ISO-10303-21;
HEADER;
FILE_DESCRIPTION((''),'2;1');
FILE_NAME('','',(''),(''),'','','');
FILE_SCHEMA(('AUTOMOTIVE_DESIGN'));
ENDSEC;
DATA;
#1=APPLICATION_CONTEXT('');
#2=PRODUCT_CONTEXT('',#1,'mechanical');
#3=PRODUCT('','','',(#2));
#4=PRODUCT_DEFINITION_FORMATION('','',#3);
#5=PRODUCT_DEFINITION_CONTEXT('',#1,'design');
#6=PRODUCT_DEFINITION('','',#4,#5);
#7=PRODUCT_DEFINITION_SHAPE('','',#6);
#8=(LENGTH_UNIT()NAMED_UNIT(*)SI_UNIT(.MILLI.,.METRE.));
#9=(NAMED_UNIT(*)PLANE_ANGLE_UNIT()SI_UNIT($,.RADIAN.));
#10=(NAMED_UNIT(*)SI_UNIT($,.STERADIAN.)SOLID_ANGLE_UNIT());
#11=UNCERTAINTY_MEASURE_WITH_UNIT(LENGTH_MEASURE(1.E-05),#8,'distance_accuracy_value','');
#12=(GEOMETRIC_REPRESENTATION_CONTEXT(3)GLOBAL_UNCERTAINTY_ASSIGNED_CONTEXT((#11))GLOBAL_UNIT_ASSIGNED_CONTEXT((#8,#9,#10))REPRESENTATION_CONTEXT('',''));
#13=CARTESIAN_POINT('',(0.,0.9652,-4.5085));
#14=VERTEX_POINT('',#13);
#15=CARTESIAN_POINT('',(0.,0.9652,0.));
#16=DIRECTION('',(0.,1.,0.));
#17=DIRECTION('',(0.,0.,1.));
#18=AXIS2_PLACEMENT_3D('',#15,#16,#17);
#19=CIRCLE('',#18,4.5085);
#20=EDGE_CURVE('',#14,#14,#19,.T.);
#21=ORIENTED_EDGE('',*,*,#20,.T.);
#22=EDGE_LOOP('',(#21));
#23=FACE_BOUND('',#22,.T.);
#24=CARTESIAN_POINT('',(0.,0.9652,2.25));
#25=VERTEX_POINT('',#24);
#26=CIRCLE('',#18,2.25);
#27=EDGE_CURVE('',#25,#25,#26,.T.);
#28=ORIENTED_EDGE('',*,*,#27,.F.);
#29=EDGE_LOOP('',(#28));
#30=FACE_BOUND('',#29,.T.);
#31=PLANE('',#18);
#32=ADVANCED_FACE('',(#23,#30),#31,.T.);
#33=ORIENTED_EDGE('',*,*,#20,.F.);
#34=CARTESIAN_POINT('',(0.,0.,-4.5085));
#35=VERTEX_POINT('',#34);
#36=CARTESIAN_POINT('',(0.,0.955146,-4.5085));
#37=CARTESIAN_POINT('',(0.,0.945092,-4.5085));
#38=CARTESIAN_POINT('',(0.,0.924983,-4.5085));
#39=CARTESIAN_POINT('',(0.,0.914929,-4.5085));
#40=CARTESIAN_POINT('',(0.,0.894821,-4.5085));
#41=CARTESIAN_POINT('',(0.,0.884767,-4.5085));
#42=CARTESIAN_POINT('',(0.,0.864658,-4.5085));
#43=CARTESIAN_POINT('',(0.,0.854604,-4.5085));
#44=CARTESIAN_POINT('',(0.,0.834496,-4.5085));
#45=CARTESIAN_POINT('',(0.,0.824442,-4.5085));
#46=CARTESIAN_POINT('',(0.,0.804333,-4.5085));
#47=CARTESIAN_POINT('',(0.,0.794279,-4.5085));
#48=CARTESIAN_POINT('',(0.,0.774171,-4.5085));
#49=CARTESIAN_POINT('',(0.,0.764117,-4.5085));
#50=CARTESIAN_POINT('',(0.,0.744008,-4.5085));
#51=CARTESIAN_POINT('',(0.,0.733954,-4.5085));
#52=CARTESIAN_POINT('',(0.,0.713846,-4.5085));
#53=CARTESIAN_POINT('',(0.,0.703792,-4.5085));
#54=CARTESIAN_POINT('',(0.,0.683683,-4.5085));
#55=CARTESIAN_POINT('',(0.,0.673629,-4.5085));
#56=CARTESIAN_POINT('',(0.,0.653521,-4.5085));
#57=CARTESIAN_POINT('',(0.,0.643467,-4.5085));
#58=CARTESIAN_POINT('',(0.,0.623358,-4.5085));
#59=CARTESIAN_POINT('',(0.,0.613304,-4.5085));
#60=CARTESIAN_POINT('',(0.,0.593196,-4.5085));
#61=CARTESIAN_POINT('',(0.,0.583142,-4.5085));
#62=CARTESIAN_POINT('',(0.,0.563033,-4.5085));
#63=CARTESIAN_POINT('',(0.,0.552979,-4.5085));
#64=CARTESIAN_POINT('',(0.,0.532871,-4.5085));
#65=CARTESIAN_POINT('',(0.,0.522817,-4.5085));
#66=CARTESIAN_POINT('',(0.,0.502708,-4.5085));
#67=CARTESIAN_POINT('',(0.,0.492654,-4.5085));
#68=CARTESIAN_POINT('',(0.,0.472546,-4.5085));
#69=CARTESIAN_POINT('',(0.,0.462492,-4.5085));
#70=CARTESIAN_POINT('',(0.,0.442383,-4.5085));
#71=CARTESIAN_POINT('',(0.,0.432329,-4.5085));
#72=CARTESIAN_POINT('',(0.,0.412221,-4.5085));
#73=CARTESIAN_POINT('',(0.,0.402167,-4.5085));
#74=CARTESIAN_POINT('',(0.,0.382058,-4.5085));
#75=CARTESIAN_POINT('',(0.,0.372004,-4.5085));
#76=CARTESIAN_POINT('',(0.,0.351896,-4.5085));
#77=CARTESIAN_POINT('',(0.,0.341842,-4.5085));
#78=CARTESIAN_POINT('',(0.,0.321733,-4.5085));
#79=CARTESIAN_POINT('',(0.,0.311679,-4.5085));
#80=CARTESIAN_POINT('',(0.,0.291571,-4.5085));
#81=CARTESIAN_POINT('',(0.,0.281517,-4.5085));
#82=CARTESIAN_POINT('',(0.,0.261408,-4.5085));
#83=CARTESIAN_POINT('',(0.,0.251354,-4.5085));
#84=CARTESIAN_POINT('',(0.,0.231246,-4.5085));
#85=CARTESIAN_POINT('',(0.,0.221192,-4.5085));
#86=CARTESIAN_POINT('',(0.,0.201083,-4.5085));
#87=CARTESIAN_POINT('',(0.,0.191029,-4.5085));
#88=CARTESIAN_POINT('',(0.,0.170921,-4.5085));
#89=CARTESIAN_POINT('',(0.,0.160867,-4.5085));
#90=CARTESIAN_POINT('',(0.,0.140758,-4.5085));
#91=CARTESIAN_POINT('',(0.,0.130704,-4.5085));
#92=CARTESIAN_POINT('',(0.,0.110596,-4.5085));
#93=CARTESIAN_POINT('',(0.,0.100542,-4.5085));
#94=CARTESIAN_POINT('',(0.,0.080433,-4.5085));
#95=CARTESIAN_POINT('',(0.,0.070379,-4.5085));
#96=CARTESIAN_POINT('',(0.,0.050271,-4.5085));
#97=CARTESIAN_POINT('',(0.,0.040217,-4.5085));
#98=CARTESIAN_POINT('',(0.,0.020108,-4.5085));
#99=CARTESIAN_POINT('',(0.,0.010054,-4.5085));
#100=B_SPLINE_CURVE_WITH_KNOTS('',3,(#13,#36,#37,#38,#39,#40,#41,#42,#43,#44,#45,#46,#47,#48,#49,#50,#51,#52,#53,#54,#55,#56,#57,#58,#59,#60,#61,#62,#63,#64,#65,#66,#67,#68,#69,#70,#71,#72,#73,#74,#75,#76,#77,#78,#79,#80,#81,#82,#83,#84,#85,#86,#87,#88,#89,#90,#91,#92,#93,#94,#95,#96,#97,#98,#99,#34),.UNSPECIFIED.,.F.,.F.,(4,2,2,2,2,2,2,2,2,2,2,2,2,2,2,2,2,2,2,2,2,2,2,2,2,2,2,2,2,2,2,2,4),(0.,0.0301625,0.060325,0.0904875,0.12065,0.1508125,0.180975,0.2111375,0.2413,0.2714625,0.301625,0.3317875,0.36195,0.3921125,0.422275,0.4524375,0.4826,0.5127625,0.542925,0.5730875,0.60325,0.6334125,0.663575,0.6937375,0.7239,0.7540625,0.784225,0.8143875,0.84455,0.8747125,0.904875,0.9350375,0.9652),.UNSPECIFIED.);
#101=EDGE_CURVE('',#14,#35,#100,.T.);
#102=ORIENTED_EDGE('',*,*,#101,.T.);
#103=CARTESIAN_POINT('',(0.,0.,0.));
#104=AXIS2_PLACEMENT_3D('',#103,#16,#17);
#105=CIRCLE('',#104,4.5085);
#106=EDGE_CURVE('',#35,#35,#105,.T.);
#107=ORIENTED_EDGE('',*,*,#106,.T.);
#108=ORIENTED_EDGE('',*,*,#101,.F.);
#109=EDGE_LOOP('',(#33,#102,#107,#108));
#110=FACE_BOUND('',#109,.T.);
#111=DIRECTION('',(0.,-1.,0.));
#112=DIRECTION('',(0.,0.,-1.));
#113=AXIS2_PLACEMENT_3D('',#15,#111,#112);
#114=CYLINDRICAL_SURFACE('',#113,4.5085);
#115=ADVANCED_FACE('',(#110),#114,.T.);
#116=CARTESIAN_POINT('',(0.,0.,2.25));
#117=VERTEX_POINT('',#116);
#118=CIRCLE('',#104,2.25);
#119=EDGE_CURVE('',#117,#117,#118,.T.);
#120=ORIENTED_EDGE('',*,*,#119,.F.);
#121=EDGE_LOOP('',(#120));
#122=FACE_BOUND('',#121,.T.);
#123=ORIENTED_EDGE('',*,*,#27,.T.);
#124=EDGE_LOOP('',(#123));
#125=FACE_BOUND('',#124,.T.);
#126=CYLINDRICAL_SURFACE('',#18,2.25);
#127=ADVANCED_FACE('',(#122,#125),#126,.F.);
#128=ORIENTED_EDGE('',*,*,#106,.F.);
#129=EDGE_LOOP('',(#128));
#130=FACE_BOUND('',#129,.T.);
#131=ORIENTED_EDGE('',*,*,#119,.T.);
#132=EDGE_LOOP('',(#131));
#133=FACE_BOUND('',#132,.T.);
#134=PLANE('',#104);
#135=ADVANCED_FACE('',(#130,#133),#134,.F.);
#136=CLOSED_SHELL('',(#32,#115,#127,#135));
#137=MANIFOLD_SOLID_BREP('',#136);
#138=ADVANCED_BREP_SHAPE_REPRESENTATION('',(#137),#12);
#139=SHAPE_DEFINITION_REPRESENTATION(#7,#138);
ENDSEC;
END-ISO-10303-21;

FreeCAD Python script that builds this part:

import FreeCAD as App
import Part
import Sketcher
Q = App.Units.Quantity

doc = App.newDocument("Part")
body = doc.addObject("PartDesign::Body", "Body")

sketch1 = body.newObject("Sketcher::SketchObject", "Sketch")
sketch1.AttachmentSupport = (doc.getObject("XZ_Plane"), [""])
sketch1.MapMode = "FlatFace"
sketch1.addGeometry(Part.Circle(App.Vector(0, 0, 0), App.Vector(0, 0, 1), 4.5), False)
sketch1.addConstraint(Sketcher.Constraint("Coincident", 0, 3, -1, 1))
sketch1.addConstraint(Sketcher.Constraint("Diameter", 0, Q("0.355 in")))
pad1 = body.newObject("PartDesign::Pad", "Pad")
pad1.Profile = sketch1
pad1.Length = Q("0.038 in")
pad1.Reversed = True

sketch2 = body.newObject("Sketcher::SketchObject", "Sketch001")
sketch2.AttachmentSupport = (doc.getObject("XZ_Plane"), [""])
sketch2.MapMode = "FlatFace"
sketch2.AttachmentOffset = App.Placement(App.Vector(0, 0, -0.038 * 25.4), App.Rotation())
sketch2.addGeometry(Part.Circle(App.Vector(0, 0, 0), App.Vector(0, 0, 1), 2.2), False)
sketch2.addConstraint(Sketcher.Constraint("Coincident", 0, 3, -1, 1))
sketch2.addConstraint(Sketcher.Constraint("Diameter", 0, Q("4.5 mm")))
doc.recompute()
hole = body.newObject("PartDesign::Hole", "Hole")
hole.Profile = sketch2
hole.ThreadType = "None"
hole.Diameter = 4.5
hole.DepthType = "ThroughAll"
hole.Reversed = True

doc.recompute()
